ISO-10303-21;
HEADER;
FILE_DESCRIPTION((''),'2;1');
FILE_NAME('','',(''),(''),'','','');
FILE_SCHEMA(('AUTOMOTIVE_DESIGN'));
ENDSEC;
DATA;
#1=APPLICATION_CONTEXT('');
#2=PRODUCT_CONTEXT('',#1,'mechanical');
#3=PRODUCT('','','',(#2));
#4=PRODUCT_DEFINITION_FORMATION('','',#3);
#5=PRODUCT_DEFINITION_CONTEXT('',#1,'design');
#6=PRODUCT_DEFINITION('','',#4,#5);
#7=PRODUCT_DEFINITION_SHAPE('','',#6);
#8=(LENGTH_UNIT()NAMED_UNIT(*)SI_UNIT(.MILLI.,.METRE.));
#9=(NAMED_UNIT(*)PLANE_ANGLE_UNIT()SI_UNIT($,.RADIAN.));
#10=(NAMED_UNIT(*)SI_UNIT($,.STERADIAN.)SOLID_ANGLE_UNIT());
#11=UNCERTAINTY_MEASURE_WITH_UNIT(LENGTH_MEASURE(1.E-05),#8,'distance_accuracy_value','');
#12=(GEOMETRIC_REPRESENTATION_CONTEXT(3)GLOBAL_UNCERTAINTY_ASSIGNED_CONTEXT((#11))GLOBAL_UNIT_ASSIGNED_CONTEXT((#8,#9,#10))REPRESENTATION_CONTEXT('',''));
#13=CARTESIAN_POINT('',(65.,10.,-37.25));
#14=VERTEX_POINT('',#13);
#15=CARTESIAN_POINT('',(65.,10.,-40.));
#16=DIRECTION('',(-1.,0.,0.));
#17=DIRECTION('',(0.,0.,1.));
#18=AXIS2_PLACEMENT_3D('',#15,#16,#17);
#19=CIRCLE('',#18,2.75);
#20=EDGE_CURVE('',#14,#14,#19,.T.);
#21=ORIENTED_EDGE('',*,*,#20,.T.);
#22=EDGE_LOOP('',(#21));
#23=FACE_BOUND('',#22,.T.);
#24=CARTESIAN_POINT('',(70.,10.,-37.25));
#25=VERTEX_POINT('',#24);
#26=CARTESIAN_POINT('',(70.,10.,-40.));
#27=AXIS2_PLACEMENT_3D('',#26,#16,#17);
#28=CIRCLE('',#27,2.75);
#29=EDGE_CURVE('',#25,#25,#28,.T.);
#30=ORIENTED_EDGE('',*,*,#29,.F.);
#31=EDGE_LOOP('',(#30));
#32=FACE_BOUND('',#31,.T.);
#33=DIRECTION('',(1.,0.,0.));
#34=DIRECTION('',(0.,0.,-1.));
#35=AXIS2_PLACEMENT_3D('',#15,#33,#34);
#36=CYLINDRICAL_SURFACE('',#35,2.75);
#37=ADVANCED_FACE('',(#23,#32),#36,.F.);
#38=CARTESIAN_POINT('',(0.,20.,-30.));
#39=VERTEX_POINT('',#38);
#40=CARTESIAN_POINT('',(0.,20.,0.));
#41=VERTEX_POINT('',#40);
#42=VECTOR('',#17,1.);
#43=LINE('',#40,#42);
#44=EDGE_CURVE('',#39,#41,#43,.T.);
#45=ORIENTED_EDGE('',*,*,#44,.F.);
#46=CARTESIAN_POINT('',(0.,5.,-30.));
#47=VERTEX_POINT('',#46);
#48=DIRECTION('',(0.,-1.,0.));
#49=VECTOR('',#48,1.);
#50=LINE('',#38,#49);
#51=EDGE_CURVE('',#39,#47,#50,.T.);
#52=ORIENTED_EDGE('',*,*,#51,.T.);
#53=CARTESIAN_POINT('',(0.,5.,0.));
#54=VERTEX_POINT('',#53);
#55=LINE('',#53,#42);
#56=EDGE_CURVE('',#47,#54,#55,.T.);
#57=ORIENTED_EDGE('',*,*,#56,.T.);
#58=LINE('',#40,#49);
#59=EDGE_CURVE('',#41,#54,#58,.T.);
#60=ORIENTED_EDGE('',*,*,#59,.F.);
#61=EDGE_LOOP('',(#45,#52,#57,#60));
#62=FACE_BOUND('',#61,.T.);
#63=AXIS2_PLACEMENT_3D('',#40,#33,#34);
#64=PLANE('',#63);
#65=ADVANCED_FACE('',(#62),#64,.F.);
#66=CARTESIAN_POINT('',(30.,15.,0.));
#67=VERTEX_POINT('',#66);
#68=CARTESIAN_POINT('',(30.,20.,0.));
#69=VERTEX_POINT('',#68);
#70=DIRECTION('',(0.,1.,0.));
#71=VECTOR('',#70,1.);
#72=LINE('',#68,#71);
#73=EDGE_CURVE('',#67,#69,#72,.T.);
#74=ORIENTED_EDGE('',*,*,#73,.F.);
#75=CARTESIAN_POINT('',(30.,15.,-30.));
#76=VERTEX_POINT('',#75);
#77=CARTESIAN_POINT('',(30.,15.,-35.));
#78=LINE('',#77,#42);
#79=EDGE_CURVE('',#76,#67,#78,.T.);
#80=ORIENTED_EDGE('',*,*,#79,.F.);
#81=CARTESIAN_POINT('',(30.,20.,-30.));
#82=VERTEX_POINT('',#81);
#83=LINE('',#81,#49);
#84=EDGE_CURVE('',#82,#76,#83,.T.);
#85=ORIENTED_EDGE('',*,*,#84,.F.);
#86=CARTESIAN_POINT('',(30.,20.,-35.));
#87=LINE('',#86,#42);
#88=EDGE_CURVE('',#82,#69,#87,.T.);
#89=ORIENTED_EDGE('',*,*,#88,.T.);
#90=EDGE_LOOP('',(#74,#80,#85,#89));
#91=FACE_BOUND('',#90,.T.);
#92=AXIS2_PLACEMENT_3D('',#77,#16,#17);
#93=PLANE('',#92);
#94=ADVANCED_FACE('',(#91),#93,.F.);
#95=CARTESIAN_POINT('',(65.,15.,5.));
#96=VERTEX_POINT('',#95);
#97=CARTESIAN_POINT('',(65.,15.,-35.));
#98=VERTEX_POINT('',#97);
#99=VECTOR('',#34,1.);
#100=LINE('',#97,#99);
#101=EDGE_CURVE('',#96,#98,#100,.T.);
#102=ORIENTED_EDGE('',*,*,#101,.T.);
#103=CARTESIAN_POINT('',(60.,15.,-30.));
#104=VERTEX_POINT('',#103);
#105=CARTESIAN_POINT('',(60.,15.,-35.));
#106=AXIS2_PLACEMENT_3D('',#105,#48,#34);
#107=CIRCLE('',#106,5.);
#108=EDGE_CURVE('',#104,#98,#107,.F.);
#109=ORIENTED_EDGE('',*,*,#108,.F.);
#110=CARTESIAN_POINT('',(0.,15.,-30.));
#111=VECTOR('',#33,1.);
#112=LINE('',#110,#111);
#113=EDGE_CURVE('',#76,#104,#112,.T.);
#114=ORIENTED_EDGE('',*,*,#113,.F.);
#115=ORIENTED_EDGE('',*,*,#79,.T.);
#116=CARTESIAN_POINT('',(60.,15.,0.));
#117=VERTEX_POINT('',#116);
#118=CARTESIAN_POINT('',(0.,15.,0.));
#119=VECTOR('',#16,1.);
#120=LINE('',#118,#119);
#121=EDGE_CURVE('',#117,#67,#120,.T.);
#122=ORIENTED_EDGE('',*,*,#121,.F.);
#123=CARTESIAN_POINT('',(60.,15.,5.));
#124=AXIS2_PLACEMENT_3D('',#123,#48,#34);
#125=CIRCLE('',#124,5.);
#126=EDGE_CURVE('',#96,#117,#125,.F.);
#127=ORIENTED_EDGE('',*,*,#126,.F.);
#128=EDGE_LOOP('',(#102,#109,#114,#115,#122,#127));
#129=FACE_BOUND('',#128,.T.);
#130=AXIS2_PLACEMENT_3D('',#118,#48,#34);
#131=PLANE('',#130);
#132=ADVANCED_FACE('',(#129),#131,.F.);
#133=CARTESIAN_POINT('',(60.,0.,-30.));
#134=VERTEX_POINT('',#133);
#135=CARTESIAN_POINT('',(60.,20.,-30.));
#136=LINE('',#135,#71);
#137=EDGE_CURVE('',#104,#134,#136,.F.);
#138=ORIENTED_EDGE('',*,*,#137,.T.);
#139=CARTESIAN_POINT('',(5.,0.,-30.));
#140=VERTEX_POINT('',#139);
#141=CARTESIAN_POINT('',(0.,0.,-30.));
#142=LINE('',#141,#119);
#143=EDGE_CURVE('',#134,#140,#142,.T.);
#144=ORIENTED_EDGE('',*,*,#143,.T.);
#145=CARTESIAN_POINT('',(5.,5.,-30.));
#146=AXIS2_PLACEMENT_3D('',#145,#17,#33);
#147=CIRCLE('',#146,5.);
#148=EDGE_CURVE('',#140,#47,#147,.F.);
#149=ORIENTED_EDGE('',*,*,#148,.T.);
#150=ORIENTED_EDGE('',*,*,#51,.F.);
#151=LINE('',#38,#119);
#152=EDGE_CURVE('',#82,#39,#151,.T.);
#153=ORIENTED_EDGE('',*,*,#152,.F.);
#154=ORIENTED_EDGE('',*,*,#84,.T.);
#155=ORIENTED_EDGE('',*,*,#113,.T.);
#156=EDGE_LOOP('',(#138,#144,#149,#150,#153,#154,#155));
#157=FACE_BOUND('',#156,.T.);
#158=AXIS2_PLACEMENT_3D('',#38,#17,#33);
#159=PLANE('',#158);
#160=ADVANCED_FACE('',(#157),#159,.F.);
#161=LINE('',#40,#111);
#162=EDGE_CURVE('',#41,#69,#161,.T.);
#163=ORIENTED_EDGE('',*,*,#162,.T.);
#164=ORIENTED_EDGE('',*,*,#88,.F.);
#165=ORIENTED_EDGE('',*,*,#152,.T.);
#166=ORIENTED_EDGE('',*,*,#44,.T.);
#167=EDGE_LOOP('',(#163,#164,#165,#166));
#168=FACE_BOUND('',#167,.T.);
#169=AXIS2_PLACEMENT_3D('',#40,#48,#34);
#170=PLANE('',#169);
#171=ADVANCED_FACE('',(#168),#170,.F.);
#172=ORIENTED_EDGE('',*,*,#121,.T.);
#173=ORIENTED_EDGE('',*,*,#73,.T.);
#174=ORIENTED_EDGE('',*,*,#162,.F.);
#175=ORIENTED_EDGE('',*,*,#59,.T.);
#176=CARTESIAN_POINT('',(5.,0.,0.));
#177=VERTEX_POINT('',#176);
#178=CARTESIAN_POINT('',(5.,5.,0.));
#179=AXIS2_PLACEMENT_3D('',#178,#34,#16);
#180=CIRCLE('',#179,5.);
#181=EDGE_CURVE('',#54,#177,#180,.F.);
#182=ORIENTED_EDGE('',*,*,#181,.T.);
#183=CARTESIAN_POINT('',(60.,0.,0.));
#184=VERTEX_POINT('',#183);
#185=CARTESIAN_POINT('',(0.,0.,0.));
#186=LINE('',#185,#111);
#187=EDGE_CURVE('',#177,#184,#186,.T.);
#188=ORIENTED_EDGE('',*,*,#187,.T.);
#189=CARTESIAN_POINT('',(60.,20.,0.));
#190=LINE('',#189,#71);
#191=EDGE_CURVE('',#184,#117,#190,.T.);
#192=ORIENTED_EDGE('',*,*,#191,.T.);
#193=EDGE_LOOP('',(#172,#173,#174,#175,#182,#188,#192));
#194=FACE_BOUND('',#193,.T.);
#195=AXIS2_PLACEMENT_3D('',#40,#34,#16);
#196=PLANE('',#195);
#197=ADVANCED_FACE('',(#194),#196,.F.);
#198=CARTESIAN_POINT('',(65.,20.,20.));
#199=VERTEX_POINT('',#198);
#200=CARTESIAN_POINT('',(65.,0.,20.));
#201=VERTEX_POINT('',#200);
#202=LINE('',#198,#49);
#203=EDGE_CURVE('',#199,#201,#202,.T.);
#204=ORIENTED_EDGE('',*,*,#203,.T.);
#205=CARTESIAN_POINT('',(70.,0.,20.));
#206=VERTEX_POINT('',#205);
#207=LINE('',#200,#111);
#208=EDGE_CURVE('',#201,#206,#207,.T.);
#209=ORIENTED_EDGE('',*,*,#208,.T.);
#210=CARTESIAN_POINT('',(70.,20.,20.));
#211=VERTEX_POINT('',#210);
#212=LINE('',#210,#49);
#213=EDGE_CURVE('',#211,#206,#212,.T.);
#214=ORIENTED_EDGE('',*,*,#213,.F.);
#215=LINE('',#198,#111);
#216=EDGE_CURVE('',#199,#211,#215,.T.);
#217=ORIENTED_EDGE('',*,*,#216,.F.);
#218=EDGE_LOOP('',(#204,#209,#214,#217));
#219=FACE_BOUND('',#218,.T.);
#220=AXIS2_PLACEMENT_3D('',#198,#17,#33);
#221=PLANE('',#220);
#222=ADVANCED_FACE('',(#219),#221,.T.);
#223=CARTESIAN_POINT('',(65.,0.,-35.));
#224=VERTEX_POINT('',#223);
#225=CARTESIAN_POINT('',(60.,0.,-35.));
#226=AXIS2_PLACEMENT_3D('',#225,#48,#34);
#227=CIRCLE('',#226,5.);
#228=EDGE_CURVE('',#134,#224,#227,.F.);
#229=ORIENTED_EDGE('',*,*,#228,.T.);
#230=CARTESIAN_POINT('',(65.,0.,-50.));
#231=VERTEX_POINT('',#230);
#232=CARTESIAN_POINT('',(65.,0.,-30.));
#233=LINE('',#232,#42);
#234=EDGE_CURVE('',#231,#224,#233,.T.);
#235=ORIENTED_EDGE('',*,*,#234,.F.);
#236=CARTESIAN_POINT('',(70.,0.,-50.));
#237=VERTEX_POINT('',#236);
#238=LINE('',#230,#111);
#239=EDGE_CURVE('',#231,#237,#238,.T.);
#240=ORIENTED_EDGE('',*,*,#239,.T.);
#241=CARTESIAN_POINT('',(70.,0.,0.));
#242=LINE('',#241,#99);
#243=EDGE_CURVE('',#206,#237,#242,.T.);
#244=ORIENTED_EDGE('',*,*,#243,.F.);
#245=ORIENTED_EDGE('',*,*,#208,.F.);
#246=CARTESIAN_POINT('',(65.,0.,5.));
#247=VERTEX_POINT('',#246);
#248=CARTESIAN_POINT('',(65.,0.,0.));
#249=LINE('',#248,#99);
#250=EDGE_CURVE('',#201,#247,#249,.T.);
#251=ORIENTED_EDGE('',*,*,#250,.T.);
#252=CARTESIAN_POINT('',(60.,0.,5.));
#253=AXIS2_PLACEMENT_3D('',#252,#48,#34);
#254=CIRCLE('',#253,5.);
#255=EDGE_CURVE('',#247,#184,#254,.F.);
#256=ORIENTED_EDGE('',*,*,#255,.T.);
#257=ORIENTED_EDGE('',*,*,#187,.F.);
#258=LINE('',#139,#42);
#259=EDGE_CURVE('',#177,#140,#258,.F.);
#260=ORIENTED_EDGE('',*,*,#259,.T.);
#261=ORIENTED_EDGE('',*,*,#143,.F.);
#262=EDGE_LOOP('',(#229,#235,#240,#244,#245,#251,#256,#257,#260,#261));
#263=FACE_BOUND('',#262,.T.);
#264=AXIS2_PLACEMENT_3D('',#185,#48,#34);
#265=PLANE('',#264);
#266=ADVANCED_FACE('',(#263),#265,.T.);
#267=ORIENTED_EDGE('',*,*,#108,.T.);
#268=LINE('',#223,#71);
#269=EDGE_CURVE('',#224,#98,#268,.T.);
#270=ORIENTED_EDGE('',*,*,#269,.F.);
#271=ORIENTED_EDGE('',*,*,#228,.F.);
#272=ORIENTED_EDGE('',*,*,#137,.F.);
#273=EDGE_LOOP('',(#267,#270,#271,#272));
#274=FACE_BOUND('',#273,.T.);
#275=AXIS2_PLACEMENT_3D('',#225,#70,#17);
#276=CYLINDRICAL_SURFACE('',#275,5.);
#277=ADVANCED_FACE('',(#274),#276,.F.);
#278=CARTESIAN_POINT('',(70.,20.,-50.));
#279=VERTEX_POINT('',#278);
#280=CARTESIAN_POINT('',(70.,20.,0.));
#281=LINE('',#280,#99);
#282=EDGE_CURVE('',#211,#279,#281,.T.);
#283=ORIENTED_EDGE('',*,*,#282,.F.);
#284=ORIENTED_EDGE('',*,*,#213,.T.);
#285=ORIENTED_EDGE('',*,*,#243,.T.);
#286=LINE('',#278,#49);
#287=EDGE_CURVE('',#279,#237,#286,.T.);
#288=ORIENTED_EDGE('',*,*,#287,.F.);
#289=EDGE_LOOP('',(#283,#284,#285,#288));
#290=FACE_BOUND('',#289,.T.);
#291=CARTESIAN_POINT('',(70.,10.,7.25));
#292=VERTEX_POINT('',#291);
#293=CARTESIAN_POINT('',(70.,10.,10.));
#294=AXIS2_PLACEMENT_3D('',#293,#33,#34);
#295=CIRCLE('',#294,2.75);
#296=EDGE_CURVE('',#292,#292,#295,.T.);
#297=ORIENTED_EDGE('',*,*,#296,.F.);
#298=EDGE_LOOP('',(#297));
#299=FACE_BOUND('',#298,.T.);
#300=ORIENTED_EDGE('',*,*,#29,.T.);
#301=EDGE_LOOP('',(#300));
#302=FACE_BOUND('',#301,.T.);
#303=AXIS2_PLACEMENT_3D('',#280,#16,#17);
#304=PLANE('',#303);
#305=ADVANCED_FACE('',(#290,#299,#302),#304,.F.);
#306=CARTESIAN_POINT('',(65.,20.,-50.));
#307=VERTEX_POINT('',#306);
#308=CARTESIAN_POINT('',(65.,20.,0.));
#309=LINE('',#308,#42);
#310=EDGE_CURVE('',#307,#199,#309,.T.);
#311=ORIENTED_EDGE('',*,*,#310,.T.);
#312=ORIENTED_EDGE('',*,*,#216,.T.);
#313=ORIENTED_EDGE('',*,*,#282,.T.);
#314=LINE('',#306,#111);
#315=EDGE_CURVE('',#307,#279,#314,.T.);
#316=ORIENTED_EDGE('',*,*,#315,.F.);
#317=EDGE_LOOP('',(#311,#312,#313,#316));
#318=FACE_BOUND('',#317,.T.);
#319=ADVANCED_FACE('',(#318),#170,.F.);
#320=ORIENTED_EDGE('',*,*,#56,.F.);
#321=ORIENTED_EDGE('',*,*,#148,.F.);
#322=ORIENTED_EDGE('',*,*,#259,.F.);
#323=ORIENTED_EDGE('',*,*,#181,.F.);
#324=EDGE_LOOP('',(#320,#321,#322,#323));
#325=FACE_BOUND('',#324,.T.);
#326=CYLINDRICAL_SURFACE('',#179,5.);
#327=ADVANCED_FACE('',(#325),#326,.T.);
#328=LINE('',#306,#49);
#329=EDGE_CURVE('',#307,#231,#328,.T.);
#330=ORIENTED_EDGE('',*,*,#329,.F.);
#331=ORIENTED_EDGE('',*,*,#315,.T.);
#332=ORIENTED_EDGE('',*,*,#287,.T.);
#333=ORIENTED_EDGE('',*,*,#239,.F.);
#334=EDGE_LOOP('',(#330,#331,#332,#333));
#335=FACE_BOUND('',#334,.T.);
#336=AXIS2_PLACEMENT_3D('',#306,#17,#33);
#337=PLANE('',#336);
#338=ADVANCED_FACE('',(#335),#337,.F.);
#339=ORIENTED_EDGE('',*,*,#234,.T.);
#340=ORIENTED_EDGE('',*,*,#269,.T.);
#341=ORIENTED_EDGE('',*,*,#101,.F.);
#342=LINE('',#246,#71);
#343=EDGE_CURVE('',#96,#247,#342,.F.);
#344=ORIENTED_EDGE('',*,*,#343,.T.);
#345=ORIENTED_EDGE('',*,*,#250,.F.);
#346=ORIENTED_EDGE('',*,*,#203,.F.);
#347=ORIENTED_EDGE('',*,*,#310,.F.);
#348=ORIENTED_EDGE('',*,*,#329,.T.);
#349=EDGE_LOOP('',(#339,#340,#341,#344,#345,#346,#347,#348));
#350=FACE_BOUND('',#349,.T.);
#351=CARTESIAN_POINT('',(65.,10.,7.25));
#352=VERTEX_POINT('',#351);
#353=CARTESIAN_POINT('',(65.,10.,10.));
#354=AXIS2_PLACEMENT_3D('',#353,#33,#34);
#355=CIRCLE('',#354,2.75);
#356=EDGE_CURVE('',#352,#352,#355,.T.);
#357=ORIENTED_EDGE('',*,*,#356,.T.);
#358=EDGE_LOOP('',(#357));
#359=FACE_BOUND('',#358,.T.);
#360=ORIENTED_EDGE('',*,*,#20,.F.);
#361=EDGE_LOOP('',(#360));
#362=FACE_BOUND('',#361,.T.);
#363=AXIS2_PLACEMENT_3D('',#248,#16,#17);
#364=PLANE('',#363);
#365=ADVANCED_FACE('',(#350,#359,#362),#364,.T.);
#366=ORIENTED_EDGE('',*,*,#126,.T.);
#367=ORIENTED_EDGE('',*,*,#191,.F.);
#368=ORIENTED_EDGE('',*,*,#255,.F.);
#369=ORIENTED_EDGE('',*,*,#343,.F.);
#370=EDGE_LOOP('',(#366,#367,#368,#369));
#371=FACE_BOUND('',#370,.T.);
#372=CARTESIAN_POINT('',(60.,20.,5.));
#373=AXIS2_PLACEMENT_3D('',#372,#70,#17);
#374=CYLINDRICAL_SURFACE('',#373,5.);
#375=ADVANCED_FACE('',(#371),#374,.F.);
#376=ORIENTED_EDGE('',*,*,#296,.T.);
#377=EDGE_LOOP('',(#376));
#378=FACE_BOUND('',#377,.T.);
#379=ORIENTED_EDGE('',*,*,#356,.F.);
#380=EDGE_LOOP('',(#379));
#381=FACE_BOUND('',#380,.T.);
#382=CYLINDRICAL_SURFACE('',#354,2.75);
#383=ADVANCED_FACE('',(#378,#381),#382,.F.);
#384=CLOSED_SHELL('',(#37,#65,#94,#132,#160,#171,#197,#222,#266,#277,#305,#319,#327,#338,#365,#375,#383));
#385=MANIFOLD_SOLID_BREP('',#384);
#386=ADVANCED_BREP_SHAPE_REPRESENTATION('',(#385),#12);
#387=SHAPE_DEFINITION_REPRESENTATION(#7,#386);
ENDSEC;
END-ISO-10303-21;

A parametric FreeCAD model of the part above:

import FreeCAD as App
import Part
import Sketcher
Q = App.Units.Quantity


def edges_at(feature, points):
    """Names of the edges that pass closest to the given points."""
    edges = feature.Shape.Edges
    near = lambda p: min(range(len(edges)), key=lambda i: edges[i].distToShape(Part.Vertex(*p))[0])
    return sorted({f"Edge{near(p) + 1}" for p in points})


def add_polygon(sketch, points):
    """Adds a closed chain of lines whose ends are joined by coincident constraints."""
    first, n = sketch.GeometryCount, len(points)
    for a, b in zip(points, points[1:] + points[:1]):
        sketch.addGeometry(Part.LineSegment(App.Vector(*a, 0), App.Vector(*b, 0)), False)
    for i in range(n):
        sketch.addConstraint(Sketcher.Constraint("Coincident", first + i, 2, first + (i + 1) % n, 1))

doc = App.newDocument("Part")
body = doc.addObject("PartDesign::Body", "Body")

# Sketch on XZ plane
sketch1 = body.newObject("Sketcher::SketchObject", "Sketch")
sketch1.AttachmentSupport = (doc.getObject("XZ_Plane"), [""])
sketch1.MapMode = "FlatFace"
add_polygon(sketch1, [(0, -30), (0, 0), (70, 0), (70, -30)])  # lines 0-3
sketch1.addConstraint(Sketcher.Constraint("Vertical", 0))
sketch1.addConstraint(Sketcher.Constraint("Horizontal", 1))
sketch1.addConstraint(Sketcher.Constraint("Vertical", 2))
sketch1.addConstraint(Sketcher.Constraint("Horizontal", 3))
sketch1.addConstraint(Sketcher.Constraint("Coincident", 0, 2, -1, 1))
sketch1.addConstraint(Sketcher.Constraint("DistanceX", 1, 1, 1, 2, Q("70 mm")))
sketch1.addConstraint(Sketcher.Constraint("DistanceY", 0, 1, 0, 2, Q("30 mm")))
pad1 = body.newObject("PartDesign::Pad", "Pad")
pad1.Profile = sketch1
pad1.Length = 20
pad1.Reversed = True

# Sketch on YZ plane
sketch2 = body.newObject("Sketcher::SketchObject", "Sketch001")
sketch2.AttachmentSupport = (doc.getObject("YZ_Plane"), [""])
sketch2.MapMode = "FlatFace"
sketch2.AttachmentOffset = App.Placement(App.Vector(0, 0, 70), App.Rotation())
add_polygon(sketch2, [(20, 20), (0, 20), (0, 0), (20, 0)])  # lines 0-3
sketch2.addGeometry(Part.Circle(App.Vector(10, 10, 0), App.Vector(0, 0, 1), 2.75), False)  # 4
sketch2.addConstraint(Sketcher.Constraint("Horizontal", 0))
sketch2.addConstraint(Sketcher.Constraint("Vertical", 1))
sketch2.addConstraint(Sketcher.Constraint("Horizontal", 2))
sketch2.addConstraint(Sketcher.Constraint("Vertical", 3))
sketch2.addConstraint(Sketcher.Constraint("Coincident", 1, 2, -1, 1))
sketch2.addConstraint(Sketcher.Constraint("Equal", 2, 1))
sketch2.addConstraint(Sketcher.Constraint("Diameter", 4, Q("5.5 mm")))
sketch2.addConstraint(Sketcher.Constraint("DistanceX", 0, 2, 0, 1, Q("20 mm")))
sketch2.addConstraint(Sketcher.Constraint("DistanceX", -1, 1, 4, 3, Q("10 mm")))
sketch2.addConstraint(Sketcher.Constraint("DistanceY", -1, 1, 4, 3, Q("10 mm")))
pad2 = body.newObject("PartDesign::Pad", "Pad001")
pad2.Profile = sketch2
pad2.Length = 5
pad2.Reversed = True
doc.recompute()

datumplane = body.newObject("PartDesign::Plane", "DatumPlane")
datumplane.AttachmentSupport = (doc.getObject("XY_Plane"), [""])
datumplane.MapMode = "FlatFace"
datumplane.AttachmentOffset = App.Placement(App.Vector(0, 0, -15), App.Rotation())
mirrored = body.newObject("PartDesign::Mirrored", "Mirrored")
mirrored.Originals = [pad2]
mirrored.MirrorPlane = (datumplane, [""])
body.Tip = mirrored
doc.recompute()

fillet = body.newObject("PartDesign::Fillet", "Fillet")
fillet.Base = (mirrored, edges_at(mirrored, [(65, 10, 0), (65, 10, -30), (0, 0, -15)]))
fillet.Radius = 5

# Sketch on XZ plane
sketch3 = body.newObject("Sketcher::SketchObject", "Sketch002")
sketch3.AttachmentSupport = (doc.getObject("XZ_Plane"), [""])
sketch3.MapMode = "FlatFace"
sketch3.AttachmentOffset = App.Placement(App.Vector(0, 0, -20), App.Rotation())
add_polygon(sketch3, [(30, -35), (30, 5), (65, 5), (65, -35)])  # lines 0-3
sketch3.addConstraint(Sketcher.Constraint("Vertical", 0))
sketch3.addConstraint(Sketcher.Constraint("Horizontal", 1))
sketch3.addConstraint(Sketcher.Constraint("Vertical", 2))
sketch3.addConstraint(Sketcher.Constraint("Horizontal", 3))
sketch3.addConstraint(Sketcher.Constraint("DistanceX", 1, 1, 1, 2, Q("35 mm")))
sketch3.addConstraint(Sketcher.Constraint("DistanceY", 0, 1, 0, 2, Q("40 mm")))
sketch3.addConstraint(Sketcher.Constraint("DistanceX", -1, 1, 0, 2, Q("30 mm")))
sketch3.addConstraint(Sketcher.Constraint("DistanceY", -1, 1, 0, 2, Q("5 mm")))
pocket1 = body.newObject("PartDesign::Pocket", "Pocket")
pocket1.Profile = sketch3
pocket1.Length = 5
pocket1.Reversed = True

doc.recompute()
